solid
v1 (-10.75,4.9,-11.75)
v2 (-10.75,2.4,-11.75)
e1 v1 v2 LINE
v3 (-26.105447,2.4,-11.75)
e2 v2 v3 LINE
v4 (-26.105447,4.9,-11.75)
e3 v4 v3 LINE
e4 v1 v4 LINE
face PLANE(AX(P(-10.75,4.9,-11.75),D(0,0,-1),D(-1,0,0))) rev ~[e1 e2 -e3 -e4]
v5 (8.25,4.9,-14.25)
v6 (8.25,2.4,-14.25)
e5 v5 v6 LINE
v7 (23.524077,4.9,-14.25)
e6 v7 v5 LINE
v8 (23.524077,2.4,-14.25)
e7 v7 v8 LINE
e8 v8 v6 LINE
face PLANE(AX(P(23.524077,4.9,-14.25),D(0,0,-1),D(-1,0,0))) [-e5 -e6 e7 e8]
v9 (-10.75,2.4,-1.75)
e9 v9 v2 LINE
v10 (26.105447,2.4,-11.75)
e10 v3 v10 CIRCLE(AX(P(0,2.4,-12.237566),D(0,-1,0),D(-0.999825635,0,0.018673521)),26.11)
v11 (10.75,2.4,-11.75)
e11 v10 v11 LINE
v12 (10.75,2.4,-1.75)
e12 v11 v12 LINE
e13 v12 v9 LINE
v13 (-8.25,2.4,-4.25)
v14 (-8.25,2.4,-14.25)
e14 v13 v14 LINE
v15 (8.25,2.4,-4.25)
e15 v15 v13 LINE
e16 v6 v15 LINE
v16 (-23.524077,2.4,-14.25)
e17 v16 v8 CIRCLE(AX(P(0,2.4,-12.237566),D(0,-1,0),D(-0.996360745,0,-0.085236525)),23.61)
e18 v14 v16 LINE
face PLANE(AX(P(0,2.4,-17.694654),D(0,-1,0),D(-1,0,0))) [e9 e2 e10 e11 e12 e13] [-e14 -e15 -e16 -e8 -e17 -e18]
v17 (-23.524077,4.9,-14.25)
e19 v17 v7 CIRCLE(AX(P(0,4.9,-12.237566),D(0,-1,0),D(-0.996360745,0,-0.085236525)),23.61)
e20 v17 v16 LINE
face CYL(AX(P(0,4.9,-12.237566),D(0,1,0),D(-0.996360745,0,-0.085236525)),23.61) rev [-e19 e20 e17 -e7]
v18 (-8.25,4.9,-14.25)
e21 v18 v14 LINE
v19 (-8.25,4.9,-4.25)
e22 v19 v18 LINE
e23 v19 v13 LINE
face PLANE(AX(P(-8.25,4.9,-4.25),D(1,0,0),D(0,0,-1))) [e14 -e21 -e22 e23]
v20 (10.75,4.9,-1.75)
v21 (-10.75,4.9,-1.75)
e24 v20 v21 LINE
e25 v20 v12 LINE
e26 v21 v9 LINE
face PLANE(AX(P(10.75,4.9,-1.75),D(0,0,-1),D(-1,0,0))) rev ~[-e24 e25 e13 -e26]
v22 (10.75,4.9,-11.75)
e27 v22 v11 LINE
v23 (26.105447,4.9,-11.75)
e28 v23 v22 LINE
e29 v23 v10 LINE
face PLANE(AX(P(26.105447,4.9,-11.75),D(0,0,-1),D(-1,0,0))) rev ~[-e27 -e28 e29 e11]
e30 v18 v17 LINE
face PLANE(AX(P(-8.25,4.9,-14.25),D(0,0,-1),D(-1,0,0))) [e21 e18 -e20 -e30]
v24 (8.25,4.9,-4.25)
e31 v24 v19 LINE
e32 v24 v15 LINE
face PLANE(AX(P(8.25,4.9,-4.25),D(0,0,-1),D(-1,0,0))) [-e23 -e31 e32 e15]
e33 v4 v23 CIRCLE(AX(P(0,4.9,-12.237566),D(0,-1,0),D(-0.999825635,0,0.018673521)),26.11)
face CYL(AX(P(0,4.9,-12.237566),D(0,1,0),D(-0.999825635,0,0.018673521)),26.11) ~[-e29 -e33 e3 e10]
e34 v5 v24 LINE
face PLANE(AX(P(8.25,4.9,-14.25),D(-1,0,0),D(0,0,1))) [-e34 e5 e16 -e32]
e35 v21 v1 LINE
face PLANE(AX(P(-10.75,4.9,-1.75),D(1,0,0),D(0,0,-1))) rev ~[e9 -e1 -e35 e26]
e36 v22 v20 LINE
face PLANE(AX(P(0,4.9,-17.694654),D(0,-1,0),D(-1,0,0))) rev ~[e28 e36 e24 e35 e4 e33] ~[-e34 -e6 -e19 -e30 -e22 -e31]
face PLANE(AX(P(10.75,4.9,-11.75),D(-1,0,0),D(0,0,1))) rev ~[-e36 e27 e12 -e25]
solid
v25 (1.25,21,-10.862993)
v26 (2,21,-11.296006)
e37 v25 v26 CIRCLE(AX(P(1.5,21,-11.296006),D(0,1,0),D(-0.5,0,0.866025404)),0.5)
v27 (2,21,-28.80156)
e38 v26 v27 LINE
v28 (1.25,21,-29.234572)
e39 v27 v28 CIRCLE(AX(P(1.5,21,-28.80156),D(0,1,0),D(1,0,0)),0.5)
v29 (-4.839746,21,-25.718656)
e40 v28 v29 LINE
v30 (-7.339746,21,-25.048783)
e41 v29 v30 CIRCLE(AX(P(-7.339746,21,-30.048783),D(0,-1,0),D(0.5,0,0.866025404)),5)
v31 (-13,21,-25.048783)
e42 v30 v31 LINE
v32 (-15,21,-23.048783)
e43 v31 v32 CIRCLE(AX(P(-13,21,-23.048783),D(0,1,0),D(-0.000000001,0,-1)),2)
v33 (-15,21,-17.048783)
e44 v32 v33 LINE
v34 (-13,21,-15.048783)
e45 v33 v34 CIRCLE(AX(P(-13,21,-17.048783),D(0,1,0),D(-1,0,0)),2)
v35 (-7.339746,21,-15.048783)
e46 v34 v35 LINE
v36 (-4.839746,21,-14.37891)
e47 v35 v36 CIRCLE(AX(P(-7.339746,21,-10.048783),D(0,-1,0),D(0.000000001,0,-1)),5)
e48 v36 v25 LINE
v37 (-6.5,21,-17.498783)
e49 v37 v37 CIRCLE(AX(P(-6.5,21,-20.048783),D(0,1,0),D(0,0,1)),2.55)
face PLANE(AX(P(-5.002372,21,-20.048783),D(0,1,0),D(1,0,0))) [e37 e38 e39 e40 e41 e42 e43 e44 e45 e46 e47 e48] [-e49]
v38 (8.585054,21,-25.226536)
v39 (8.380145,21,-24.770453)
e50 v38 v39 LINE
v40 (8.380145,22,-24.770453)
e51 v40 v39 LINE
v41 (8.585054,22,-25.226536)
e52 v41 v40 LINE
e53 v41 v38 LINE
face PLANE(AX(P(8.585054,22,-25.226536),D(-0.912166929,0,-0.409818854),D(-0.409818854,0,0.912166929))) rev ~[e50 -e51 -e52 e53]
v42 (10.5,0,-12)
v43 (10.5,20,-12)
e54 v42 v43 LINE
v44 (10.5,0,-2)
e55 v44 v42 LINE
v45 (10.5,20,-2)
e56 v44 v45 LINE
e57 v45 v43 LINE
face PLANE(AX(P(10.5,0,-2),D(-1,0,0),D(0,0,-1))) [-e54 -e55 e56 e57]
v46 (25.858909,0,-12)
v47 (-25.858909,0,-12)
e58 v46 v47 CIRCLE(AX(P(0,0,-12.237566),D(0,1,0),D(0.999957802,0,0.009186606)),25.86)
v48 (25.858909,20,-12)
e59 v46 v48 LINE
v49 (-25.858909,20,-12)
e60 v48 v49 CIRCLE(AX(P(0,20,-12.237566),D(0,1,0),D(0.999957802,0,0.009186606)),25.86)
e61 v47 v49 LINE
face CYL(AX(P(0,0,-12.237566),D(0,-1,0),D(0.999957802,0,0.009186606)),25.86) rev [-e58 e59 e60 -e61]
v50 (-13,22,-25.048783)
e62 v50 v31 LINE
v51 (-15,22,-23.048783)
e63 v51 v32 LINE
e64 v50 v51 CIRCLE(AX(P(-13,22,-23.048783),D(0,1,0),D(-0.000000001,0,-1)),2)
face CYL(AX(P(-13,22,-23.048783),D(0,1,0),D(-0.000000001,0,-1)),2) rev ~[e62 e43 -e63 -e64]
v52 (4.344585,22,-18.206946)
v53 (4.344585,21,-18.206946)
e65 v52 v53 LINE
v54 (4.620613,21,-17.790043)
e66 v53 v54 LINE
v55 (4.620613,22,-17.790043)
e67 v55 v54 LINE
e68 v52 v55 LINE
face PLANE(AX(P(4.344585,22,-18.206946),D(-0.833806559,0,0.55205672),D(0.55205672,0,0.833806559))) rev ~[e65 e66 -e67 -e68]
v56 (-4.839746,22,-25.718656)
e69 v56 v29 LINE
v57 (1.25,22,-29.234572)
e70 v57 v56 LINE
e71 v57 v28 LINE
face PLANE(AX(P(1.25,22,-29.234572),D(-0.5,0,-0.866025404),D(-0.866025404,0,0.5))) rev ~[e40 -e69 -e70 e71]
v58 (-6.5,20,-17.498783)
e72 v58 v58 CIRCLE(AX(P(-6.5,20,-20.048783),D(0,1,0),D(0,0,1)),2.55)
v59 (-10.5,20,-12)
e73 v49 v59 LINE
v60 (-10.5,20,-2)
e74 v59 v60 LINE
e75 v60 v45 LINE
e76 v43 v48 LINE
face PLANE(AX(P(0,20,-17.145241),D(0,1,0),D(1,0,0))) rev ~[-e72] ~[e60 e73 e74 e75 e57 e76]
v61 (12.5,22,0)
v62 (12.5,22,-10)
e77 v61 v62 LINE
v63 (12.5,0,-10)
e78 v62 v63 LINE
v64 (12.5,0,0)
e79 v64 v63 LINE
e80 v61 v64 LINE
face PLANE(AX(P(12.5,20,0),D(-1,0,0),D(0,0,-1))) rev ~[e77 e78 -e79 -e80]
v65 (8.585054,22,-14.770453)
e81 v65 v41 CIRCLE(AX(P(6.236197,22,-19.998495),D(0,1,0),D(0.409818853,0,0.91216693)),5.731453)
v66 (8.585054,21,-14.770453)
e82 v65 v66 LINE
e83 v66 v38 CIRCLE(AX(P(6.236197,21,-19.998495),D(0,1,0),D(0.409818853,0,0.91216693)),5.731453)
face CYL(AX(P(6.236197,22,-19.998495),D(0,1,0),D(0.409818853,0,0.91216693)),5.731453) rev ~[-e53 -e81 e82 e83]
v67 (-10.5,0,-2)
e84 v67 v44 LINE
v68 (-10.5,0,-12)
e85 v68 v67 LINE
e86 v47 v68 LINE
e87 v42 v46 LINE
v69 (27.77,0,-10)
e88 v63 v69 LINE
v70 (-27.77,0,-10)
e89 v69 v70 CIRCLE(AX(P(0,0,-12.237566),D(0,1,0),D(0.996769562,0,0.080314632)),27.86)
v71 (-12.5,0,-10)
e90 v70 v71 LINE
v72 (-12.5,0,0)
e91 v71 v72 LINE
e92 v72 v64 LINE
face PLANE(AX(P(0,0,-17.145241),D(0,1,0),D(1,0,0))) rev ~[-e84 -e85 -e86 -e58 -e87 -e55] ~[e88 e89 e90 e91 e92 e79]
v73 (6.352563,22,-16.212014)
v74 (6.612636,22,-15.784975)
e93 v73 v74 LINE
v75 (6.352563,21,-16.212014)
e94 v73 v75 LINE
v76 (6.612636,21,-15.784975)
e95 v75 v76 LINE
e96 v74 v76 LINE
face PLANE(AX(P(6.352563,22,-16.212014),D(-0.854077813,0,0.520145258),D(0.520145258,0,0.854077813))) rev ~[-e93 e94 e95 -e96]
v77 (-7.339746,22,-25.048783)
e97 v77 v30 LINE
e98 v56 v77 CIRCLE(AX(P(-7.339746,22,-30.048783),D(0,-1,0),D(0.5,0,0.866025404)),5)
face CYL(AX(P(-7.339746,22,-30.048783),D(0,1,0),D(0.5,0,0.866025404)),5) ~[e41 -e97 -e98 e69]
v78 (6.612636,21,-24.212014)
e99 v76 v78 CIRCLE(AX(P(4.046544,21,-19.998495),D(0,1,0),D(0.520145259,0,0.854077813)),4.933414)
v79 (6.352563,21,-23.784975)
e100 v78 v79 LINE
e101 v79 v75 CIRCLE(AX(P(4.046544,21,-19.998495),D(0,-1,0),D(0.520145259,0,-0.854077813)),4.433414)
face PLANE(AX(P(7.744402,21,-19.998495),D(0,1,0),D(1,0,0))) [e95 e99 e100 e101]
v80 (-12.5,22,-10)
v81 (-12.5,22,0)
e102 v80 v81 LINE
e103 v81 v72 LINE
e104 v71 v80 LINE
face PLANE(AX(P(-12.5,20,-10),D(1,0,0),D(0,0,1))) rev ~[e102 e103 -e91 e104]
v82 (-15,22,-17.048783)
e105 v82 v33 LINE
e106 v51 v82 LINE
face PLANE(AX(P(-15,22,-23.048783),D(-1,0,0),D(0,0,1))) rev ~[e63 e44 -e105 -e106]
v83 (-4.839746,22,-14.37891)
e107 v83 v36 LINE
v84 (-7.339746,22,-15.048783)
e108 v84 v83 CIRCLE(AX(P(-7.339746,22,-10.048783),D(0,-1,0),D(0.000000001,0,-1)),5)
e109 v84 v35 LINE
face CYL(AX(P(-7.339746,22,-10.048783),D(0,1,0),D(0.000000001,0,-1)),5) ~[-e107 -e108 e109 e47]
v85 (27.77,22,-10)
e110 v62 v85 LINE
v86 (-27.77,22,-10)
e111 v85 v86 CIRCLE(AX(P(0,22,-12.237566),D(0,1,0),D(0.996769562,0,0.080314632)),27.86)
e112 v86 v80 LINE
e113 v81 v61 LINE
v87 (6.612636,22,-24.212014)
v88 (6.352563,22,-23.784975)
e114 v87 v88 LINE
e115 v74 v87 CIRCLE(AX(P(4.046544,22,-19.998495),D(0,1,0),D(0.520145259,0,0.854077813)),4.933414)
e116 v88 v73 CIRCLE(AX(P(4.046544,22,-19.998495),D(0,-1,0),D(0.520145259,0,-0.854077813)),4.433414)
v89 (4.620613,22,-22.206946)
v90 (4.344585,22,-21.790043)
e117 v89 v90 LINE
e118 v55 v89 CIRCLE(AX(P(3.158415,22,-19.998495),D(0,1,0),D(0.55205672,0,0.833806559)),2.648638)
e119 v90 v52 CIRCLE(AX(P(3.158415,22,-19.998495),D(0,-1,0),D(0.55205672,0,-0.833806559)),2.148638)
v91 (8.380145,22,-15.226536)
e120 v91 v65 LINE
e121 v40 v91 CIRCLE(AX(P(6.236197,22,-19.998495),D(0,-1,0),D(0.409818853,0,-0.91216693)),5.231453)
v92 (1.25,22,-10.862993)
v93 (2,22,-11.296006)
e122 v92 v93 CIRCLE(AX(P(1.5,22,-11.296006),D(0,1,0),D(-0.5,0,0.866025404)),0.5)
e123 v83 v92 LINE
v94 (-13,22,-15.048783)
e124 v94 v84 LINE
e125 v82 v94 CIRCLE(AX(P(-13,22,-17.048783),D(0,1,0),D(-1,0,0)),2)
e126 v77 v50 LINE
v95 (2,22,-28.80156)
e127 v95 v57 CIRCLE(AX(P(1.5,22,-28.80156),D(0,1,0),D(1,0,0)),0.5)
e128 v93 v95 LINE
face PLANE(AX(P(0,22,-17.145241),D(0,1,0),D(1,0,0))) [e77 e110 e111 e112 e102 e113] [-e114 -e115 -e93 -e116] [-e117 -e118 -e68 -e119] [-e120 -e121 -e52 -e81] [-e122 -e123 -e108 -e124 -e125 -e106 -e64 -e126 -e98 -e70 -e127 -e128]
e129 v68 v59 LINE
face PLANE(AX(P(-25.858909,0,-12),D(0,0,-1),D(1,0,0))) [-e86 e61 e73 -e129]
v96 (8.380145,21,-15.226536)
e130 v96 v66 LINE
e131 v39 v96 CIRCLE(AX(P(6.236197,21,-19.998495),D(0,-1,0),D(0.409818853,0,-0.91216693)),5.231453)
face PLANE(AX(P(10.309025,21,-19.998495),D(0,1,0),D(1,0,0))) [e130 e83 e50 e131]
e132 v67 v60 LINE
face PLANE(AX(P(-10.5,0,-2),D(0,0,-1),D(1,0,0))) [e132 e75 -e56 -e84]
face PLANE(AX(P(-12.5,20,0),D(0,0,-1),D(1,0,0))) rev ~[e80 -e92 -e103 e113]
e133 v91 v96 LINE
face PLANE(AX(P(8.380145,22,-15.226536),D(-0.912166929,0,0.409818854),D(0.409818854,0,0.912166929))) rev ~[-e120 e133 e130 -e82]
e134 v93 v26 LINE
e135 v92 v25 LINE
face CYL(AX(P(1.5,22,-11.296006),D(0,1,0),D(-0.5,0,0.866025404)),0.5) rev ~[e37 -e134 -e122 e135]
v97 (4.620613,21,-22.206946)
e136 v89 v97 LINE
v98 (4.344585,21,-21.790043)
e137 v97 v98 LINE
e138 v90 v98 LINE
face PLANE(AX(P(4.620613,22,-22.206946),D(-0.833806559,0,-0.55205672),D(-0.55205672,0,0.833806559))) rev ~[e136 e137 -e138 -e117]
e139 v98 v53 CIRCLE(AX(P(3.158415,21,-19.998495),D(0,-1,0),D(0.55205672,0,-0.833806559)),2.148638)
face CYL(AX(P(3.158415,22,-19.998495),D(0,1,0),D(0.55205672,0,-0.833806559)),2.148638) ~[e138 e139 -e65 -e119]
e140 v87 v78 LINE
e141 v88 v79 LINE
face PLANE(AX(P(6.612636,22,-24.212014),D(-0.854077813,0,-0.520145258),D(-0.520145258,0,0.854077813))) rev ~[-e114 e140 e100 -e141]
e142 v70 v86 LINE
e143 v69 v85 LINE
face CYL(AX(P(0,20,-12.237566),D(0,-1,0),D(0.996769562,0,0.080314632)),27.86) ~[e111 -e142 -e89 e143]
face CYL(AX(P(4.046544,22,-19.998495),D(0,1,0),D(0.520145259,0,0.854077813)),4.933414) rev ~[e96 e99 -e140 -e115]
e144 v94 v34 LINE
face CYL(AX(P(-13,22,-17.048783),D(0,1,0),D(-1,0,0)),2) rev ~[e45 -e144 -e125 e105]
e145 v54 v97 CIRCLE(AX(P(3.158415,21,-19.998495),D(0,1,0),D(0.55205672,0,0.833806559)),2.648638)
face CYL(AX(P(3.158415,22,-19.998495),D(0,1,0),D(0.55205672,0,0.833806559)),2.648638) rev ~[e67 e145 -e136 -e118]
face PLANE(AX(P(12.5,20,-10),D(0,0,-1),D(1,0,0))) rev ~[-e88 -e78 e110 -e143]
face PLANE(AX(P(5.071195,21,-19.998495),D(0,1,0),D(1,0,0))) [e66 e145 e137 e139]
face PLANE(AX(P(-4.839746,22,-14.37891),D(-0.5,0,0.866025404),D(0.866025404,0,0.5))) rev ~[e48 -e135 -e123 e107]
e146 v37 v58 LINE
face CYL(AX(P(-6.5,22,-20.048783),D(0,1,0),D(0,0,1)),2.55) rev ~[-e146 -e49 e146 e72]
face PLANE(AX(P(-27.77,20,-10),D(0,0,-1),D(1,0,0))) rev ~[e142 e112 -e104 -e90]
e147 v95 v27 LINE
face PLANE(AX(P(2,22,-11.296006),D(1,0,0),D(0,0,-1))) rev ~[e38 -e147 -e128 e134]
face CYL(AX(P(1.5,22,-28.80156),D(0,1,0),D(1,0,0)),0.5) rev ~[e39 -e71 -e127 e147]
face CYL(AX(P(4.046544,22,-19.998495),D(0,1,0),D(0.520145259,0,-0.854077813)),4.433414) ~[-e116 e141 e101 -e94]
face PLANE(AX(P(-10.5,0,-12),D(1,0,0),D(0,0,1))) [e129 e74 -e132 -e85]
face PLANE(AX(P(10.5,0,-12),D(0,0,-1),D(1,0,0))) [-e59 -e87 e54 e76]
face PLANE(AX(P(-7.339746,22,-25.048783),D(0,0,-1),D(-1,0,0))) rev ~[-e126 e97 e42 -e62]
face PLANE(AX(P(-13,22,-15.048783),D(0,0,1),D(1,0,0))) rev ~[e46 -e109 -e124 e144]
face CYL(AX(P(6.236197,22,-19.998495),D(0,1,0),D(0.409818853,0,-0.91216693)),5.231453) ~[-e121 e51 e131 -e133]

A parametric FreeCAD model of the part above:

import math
import FreeCAD as App
import Part
import Sketcher
from FreeCAD import Vector
Q = App.Units.Quantity

doc = App.newDocument("Part")
params = doc.addObject("Spreadsheet::Sheet", "Params")
for row, (alias, value) in enumerate([
    ("sketch1_width", "25 mm"),
    ("sketch1_width2", "21 mm"),
    ("sketch1_height", "10 mm"),
    ("sketch1_radius", "27.86 mm"),
    ("sketch1_radius2", "25.86 mm"),
    ("pad1_length", "20 mm"),
    ("sketch2_width", "25 mm"),
    ("sketch2_height", "10 mm"),
    ("sketch2_radius", "27.86 mm"),
    ("sketch2_width2", "15.27 mm"),
    ("pad2_length", "2 mm"),
    ("sketch3_radius", "2 mm"),
    ("sketch3_radius2", "5 mm"),
    ("sketch3_radius3", "0.5 mm"),
    ("sketch3_height", "6 mm"),
    ("pocket1_length", "1 mm"),
    ("sketch4_length", "0.5 mm"),
    ("pocket2_length", "1 mm"),
    ("sketch5_diameter", "5.1 mm"),
    ("pocket3_length", "11 mm"),
    ("sketch6_height", "10 mm"),
    ("sketch6_radius", "26.11 mm"),
    ("sketch6_radius2", "23.61 mm"),
    ("sketch6_width", "21.5 mm"),
    ("sketch6_width2", "16.5 mm"),
    ("pad3_length", "2.5 mm"),
], start=1):
    params.set(f"A{row}", alias)
    params.set(f"B{row}", "=" + value)
    params.setAlias(f"B{row}", alias)

body = doc.addObject("PartDesign::Body", "Body")

sketch1 = doc.addObject("Sketcher::SketchObject", "Sketch")
body.addObject(sketch1)
sketch1.AttachmentSupport = (doc.XZ_Plane, [""])
sketch1.MapMode = "FlatFace"
sketch1.addGeometry(Part.LineSegment(Vector(-28, -10, 0), Vector(-12, -10, 0)), False)
sketch1.addGeometry(Part.LineSegment(Vector(-12, -10, 0), Vector(-12, 0, 0)), False)
sketch1.addGeometry(Part.LineSegment(Vector(-12, 0, 0), Vector(12, 0, 0)), False)
sketch1.addGeometry(Part.LineSegment(Vector(12, 0, 0), Vector(12, -10, 0)), False)
sketch1.addGeometry(Part.LineSegment(Vector(12, -10, 0), Vector(28, -10, 0)), False)
sketch1.addGeometry(Part.ArcOfCircle(Part.Circle(Vector(0, -12, 0), Vector(0, 0, 1), 28), math.radians(175), math.radians(365)), False)
sketch1.addGeometry(Part.LineSegment(Vector(-10, -12, 0), Vector(-26, -12, 0)), False)
sketch1.addGeometry(Part.ArcOfCircle(Part.Circle(Vector(0, -12, 0), Vector(0, 0, 1), 26), math.radians(179), math.radians(361)), False)
sketch1.addGeometry(Part.LineSegment(Vector(26, -12, 0), Vector(10, -12, 0)), False)
sketch1.addGeometry(Part.LineSegment(Vector(10, -12, 0), Vector(10, -2, 0)), False)
sketch1.addGeometry(Part.LineSegment(Vector(10, -2, 0), Vector(-10, -2, 0)), False)
sketch1.addGeometry(Part.LineSegment(Vector(-10, -2, 0), Vector(-10, -12, 0)), False)
sketch1.addConstraint(Sketcher.Constraint("Coincident", 0, 2, 1, 1))
sketch1.addConstraint(Sketcher.Constraint("Coincident", 1, 2, 2, 1))
sketch1.addConstraint(Sketcher.Constraint("Coincident", 2, 2, 3, 1))
sketch1.addConstraint(Sketcher.Constraint("Coincident", 3, 2, 4, 1))
sketch1.addConstraint(Sketcher.Constraint("Coincident", 4, 2, 5, 2))
sketch1.addConstraint(Sketcher.Constraint("Coincident", 5, 1, 0, 1))
sketch1.addConstraint(Sketcher.Constraint("Coincident", 6, 2, 7, 1))
sketch1.addConstraint(Sketcher.Constraint("Coincident", 7, 2, 8, 1))
sketch1.addConstraint(Sketcher.Constraint("Coincident", 8, 2, 9, 1))
sketch1.addConstraint(Sketcher.Constraint("Coincident", 9, 2, 10, 1))
sketch1.addConstraint(Sketcher.Constraint("Coincident", 10, 2, 11, 1))
sketch1.addConstraint(Sketcher.Constraint("Coincident", 11, 2, 6, 1))
sketch1.addConstraint(Sketcher.Constraint("Horizontal", 0))
sketch1.addConstraint(Sketcher.Constraint("Vertical", 1))
sketch1.addConstraint(Sketcher.Constraint("Horizontal", 2))
sketch1.addConstraint(Sketcher.Constraint("Vertical", 3))
sketch1.addConstraint(Sketcher.Constraint("Horizontal", 4))
sketch1.addConstraint(Sketcher.Constraint("Horizontal", 6))
sketch1.addConstraint(Sketcher.Constraint("Horizontal", 8))
sketch1.addConstraint(Sketcher.Constraint("Vertical", 9))
sketch1.addConstraint(Sketcher.Constraint("Horizontal", 10))
sketch1.addConstraint(Sketcher.Constraint("Vertical", 11))
sketch1.addConstraint(Sketcher.Constraint("Coincident", 7, 3, 5, 3))
sketch1.addConstraint(Sketcher.Constraint("Symmetric", 1, 2, 2, 2, -1, 1))
sketch1.addConstraint(Sketcher.Constraint("Symmetric", 4, 2, 5, 1, -2))
sketch1.addConstraint(Sketcher.Constraint("Symmetric", 8, 2, 11, 2, -2))
sketch1.addConstraint(Sketcher.Constraint("Equal", 3, 9))
sketch1.addConstraint(Sketcher.Constraint("DistanceX", 2, 1, 2, 2, Q("25 mm")))
sketch1.addConstraint(Sketcher.Constraint("DistanceX", 10, 2, 10, 1, Q("21 mm")))
sketch1.addConstraint(Sketcher.Constraint("DistanceY", 1, 1, 1, 2, Q("10 mm")))
sketch1.addConstraint(Sketcher.Constraint("Radius", 5, Q("27.86 mm")))
sketch1.addConstraint(Sketcher.Constraint("Radius", 7, Q("25.86 mm")))
sketch1.addConstraint(Sketcher.Constraint("DistanceY", 6, 2, -1, 1, Q("12 mm")))
sketch1.addConstraint(Sketcher.Constraint("DistanceX", 0, 1, 0, 2, Q("15.27 mm")))
sketch1.setExpression("Constraints[27]", "Params.sketch1_width")
sketch1.setExpression("Constraints[28]", "Params.sketch1_width2")
sketch1.setExpression("Constraints[29]", "Params.sketch1_height")
sketch1.setExpression("Constraints[30]", "Params.sketch1_radius")
sketch1.setExpression("Constraints[31]", "Params.sketch1_radius2")
pad1 = doc.addObject("PartDesign::Pad", "Pad")
body.addObject(pad1)
pad1.Profile = sketch1
pad1.setExpression("Length", "Params.pad1_length")
pad1.Reversed = True

sketch2 = doc.addObject("Sketcher::SketchObject", "Sketch001")
body.addObject(sketch2)
sketch2.AttachmentSupport = (doc.XZ_Plane, [""])
sketch2.MapMode = "FlatFace"
sketch2.AttachmentOffset = App.Placement(Vector(0, 0, -20), App.Rotation())
sketch2.addGeometry(Part.LineSegment(Vector(12, -10, 0), Vector(28, -10, 0)), False)
sketch2.addGeometry(Part.ArcOfCircle(Part.Circle(Vector(0, -12, 0), Vector(0, 0, 1), 28), math.radians(175), math.radians(365)), False)
sketch2.addGeometry(Part.LineSegment(Vector(-28, -10, 0), Vector(-12, -10, 0)), False)
sketch2.addGeometry(Part.LineSegment(Vector(-12, -10, 0), Vector(-12, 0, 0)), False)
sketch2.addGeometry(Part.LineSegment(Vector(-12, 0, 0), Vector(12, 0, 0)), False)
sketch2.addGeometry(Part.LineSegment(Vector(12, 0, 0), Vector(12, -10, 0)), False)
sketch2.addConstraint(Sketcher.Constraint("Coincident", 0, 2, 1, 2))
sketch2.addConstraint(Sketcher.Constraint("Coincident", 1, 1, 2, 1))
sketch2.addConstraint(Sketcher.Constraint("Coincident", 2, 2, 3, 1))
sketch2.addConstraint(Sketcher.Constraint("Coincident", 3, 2, 4, 1))
sketch2.addConstraint(Sketcher.Constraint("Coincident", 4, 2, 5, 1))
sketch2.addConstraint(Sketcher.Constraint("Coincident", 5, 2, 0, 1))
sketch2.addConstraint(Sketcher.Constraint("Horizontal", 0))
sketch2.addConstraint(Sketcher.Constraint("Horizontal", 2))
sketch2.addConstraint(Sketcher.Constraint("Vertical", 3))
sketch2.addConstraint(Sketcher.Constraint("Horizontal", 4))
sketch2.addConstraint(Sketcher.Constraint("Vertical", 5))
sketch2.addConstraint(Sketcher.Constraint("Symmetric", 3, 2, 4, 2, -1, 1))
sketch2.addConstraint(Sketcher.Constraint("Symmetric", 0, 2, 1, 1, -2))
sketch2.addConstraint(Sketcher.Constraint("DistanceX", 4, 1, 4, 2, Q("25 mm")))
sketch2.addConstraint(Sketcher.Constraint("DistanceY", 3, 1, 3, 2, Q("10 mm")))
sketch2.addConstraint(Sketcher.Constraint("Radius", 1, Q("27.86 mm")))
sketch2.addConstraint(Sketcher.Constraint("DistanceX", 0, 1, 0, 2, Q("15.27 mm")))
sketch2.setExpression("Constraints[13]", "Params.sketch2_width")
sketch2.setExpression("Constraints[14]", "Params.sketch2_height")
sketch2.setExpression("Constraints[15]", "Params.sketch2_radius")
sketch2.setExpression("Constraints[16]", "Params.sketch2_width2")
pad2 = doc.addObject("PartDesign::Pad", "Pad001")
body.addObject(pad2)
pad2.Profile = sketch2
pad2.setExpression("Length", "Params.pad2_length")
pad2.Reversed = True

sketch3 = doc.addObject("Sketcher::SketchObject", "Sketch002")
body.addObject(sketch3)
sketch3.AttachmentSupport = (doc.XZ_Plane, [""])
sketch3.MapMode = "FlatFace"
sketch3.AttachmentOffset = App.Placement(Vector(0, 0, -22), App.Rotation())
sketch3.addGeometry(Part.LineSegment(Vector(-15, -23, 0), Vector(-15, -17, 0)), False)
sketch3.addGeometry(Part.ArcOfCircle(Part.Circle(Vector(-13, -17, 0), Vector(0, 0, 1), 2), math.radians(90), math.radians(180)), False)
sketch3.addGeometry(Part.LineSegment(Vector(-13, -15, 0), Vector(-7.3, -15, 0)), False)
sketch3.addGeometry(Part.ArcOfCircle(Part.Circle(Vector(-7.3, -10, 0), Vector(0, 0, 1), 5), math.radians(-90), math.radians(-60)), False)
sketch3.addGeometry(Part.LineSegment(Vector(-4.8, -14.4, 0), Vector(1.2, -10.9, 0)), False)
sketch3.addGeometry(Part.ArcOfCircle(Part.Circle(Vector(1.5, -11.3, 0), Vector(0, 0, 1), 0.5), math.radians(0), math.radians(120)), False)
sketch3.addGeometry(Part.LineSegment(Vector(2, -11.3, 0), Vector(2, -28.8, 0)), False)
sketch3.addGeometry(Part.ArcOfCircle(Part.Circle(Vector(1.5, -28.8, 0), Vector(0, 0, 1), 0.5), math.radians(-120), math.radians(0)), False)
sketch3.addGeometry(Part.LineSegment(Vector(1.2, -29.2, 0), Vector(-4.8, -25.7, 0)), False)
sketch3.addGeometry(Part.ArcOfCircle(Part.Circle(Vector(-7.3, -30, 0), Vector(0, 0, 1), 5), math.radians(60), math.radians(90)), False)
sketch3.addGeometry(Part.LineSegment(Vector(-7.3, -25, 0), Vector(-13, -25, 0)), False)
sketch3.addGeometry(Part.ArcOfCircle(Part.Circle(Vector(-13, -23, 0), Vector(0, 0, 1), 2), math.radians(-180), math.radians(-90)), False)
sketch3.addConstraint(Sketcher.Constraint("Tangent", 0, 2, 1, 2))
sketch3.addConstraint(Sketcher.Constraint("Tangent", 1, 1, 2, 1))
sketch3.addConstraint(Sketcher.Constraint("Tangent", 2, 2, 3, 1))
sketch3.addConstraint(Sketcher.Constraint("Tangent", 3, 2, 4, 1))
sketch3.addConstraint(Sketcher.Constraint("Tangent", 4, 2, 5, 2))
sketch3.addConstraint(Sketcher.Constraint("Tangent", 5, 1, 6, 1))
sketch3.addConstraint(Sketcher.Constraint("Tangent", 6, 2, 7, 2))
sketch3.addConstraint(Sketcher.Constraint("Tangent", 7, 1, 8, 1))
sketch3.addConstraint(Sketcher.Constraint("Tangent", 8, 2, 9, 1))
sketch3.addConstraint(Sketcher.Constraint("Tangent", 9, 2, 10, 1))
sketch3.addConstraint(Sketcher.Constraint("Tangent", 10, 2, 11, 2))
sketch3.addConstraint(Sketcher.Constraint("Tangent", 11, 1, 0, 1))
sketch3.addConstraint(Sketcher.Constraint("Vertical", 0))
sketch3.addConstraint(Sketcher.Constraint("Horizontal", 2))
sketch3.addConstraint(Sketcher.Constraint("Vertical", 6))
sketch3.addConstraint(Sketcher.Constraint("Horizontal", 10))
sketch3.addConstraint(Sketcher.Constraint("Equal", 5, 7))
sketch3.addConstraint(Sketcher.Constraint("Equal", 3, 9))
sketch3.addConstraint(Sketcher.Constraint("Equal", 1, 11))
sketch3.addConstraint(Sketcher.Constraint("Vertical", 3, 3, 9, 3))
sketch3.addConstraint(Sketcher.Constraint("Vertical", 4, 2, 7, 1))
sketch3.addConstraint(Sketcher.Constraint("Radius", 1, Q("2 mm")))
sketch3.addConstraint(Sketcher.Constraint("Radius", 3, Q("5 mm")))
sketch3.addConstraint(Sketcher.Constraint("Radius", 5, Q("0.5 mm")))
sketch3.addConstraint(Sketcher.Constraint("DistanceY", 0, 1, 0, 2, Q("6 mm")))
sketch3.addConstraint(Sketcher.Constraint("Angle", 4, Q("30 deg")))
sketch3.addConstraint(Sketcher.Constraint("DistanceX", 1, 3, -1, 1, Q("13 mm")))
sketch3.addConstraint(Sketcher.Constraint("DistanceX", -1, 1, 5, 1, Q("2 mm")))
sketch3.addConstraint(Sketcher.Constraint("DistanceX", 2, 1, 2, 2, Q("5.660254 mm")))
sketch3.addConstraint(Sketcher.Constraint("DistanceY", 7, 3, -1, 1, Q("28.80156 mm")))
sketch3.setExpression("Constraints[21]", "Params.sketch3_radius")
sketch3.setExpression("Constraints[22]", "Params.sketch3_radius2")
sketch3.setExpression("Constraints[23]", "Params.sketch3_radius3")
sketch3.setExpression("Constraints[24]", "Params.sketch3_height")
pocket1 = doc.addObject("PartDesign::Pocket", "Pocket")
body.addObject(pocket1)
pocket1.Profile = sketch3
pocket1.setExpression("Length", "Params.pocket1_length")
pocket1.Reversed = True

sketch4 = doc.addObject("Sketcher::SketchObject", "Sketch003")
body.addObject(sketch4)
sketch4.AttachmentSupport = (doc.XZ_Plane, [""])
sketch4.MapMode = "FlatFace"
sketch4.AttachmentOffset = App.Placement(Vector(0, 0, -22), App.Rotation())
sketch4.addGeometry(Part.ArcOfCircle(Part.Circle(Vector(3.16, -20, 0), Vector(0, 0, 1), 2.15), math.radians(-56), math.radians(56)), False)
sketch4.addGeometry(Part.LineSegment(Vector(4.34, -18.21, 0), Vector(4.62, -17.79, 0)), False)
sketch4.addGeometry(Part.ArcOfCircle(Part.Circle(Vector(3.16, -20, 0), Vector(0, 0, 1), 2.65), math.radians(-56), math.radians(56)), False)
sketch4.addGeometry(Part.LineSegment(Vector(4.62, -22.21, 0), Vector(4.34, -21.79, 0)), False)
sketch4.addGeometry(Part.ArcOfCircle(Part.Circle(Vector(4.05, -20, 0), Vector(0, 0, 1), 4.43), math.radians(-59), math.radians(59)), False)
sketch4.addGeometry(Part.LineSegment(Vector(6.35, -16.21, 0), Vector(6.61, -15.78, 0)), False)
sketch4.addGeometry(Part.ArcOfCircle(Part.Circle(Vector(4.05, -20, 0), Vector(0, 0, 1), 4.93), math.radians(-59), math.radians(59)), False)
sketch4.addGeometry(Part.LineSegment(Vector(6.61, -24.21, 0), Vector(6.35, -23.78, 0)), False)
sketch4.addGeometry(Part.ArcOfCircle(Part.Circle(Vector(6.24, -20, 0), Vector(0, 0, 1), 5.23), math.radians(-66), math.radians(66)), False)
sketch4.addGeometry(Part.LineSegment(Vector(8.38, -15.23, 0), Vector(8.59, -14.77, 0)), False)
sketch4.addGeometry(Part.ArcOfCircle(Part.Circle(Vector(6.24, -20, 0), Vector(0, 0, 1), 5.73), math.radians(-66), math.radians(66)), False)
sketch4.addGeometry(Part.LineSegment(Vector(8.59, -25.23, 0), Vector(8.38, -24.77, 0)), False)
sketch4.addConstraint(Sketcher.Constraint("Coincident", 0, 2, 1, 1))
sketch4.addConstraint(Sketcher.Constraint("Coincident", 1, 2, 2, 2))
sketch4.addConstraint(Sketcher.Constraint("Coincident", 2, 1, 3, 1))
sketch4.addConstraint(Sketcher.Constraint("Coincident", 3, 2, 0, 1))
sketch4.addConstraint(Sketcher.Constraint("Coincident", 4, 2, 5, 1))
sketch4.addConstraint(Sketcher.Constraint("Coincident", 5, 2, 6, 2))
sketch4.addConstraint(Sketcher.Constraint("Coincident", 6, 1, 7, 1))
sketch4.addConstraint(Sketcher.Constraint("Coincident", 7, 2, 4, 1))
sketch4.addConstraint(Sketcher.Constraint("Coincident", 8, 2, 9, 1))
sketch4.addConstraint(Sketcher.Constraint("Coincident", 9, 2, 10, 2))
sketch4.addConstraint(Sketcher.Constraint("Coincident", 10, 1, 11, 1))
sketch4.addConstraint(Sketcher.Constraint("Coincident", 11, 2, 8, 1))
sketch4.addConstraint(Sketcher.Constraint("Coincident", 2, 3, 0, 3))
sketch4.addConstraint(Sketcher.Constraint("Coincident", 6, 3, 4, 3))
sketch4.addConstraint(Sketcher.Constraint("Coincident", 10, 3, 8, 3))
sketch4.addConstraint(Sketcher.Constraint("Horizontal", 2, 3, 4, 3))
sketch4.addConstraint(Sketcher.Constraint("Horizontal", 6, 3, 8, 3))
sketch4.addConstraint(Sketcher.Constraint("Vertical", 1, 2, 2, 1))
sketch4.addConstraint(Sketcher.Constraint("Vertical", 0, 2, 3, 2))
sketch4.addConstraint(Sketcher.Constraint("Vertical", 5, 2, 6, 1))
sketch4.addConstraint(Sketcher.Constraint("Vertical", 4, 2, 7, 2))
sketch4.addConstraint(Sketcher.Constraint("Vertical", 9, 2, 10, 1))
sketch4.addConstraint(Sketcher.Constraint("Vertical", 8, 2, 11, 2))
sketch4.addConstraint(Sketcher.Constraint("Equal", 3, 5))
sketch4.addConstraint(Sketcher.Constraint("Equal", 7, 9))
sketch4.addConstraint(Sketcher.Constraint("Distance", 1, Q("0.5 mm")))
sketch4.addConstraint(Sketcher.Constraint("Radius", 0, Q("2.148638 mm")))
sketch4.addConstraint(Sketcher.Constraint("Radius", 4, Q("4.433414 mm")))
sketch4.addConstraint(Sketcher.Constraint("Radius", 8, Q("5.231453 mm")))
sketch4.addConstraint(Sketcher.Constraint("DistanceX", 2, 3, 1, 2, Q("1.462198 mm")))
sketch4.addConstraint(Sketcher.Constraint("DistanceX", 2, 3, 4, 3, Q("0.888129 mm")))
sketch4.addConstraint(Sketcher.Constraint("DistanceX", 2, 3, 8, 3, Q("3.077781 mm")))
sketch4.addConstraint(Sketcher.Constraint("DistanceX", 4, 3, 0, 2, Q("0.298041 mm")))
sketch4.addConstraint(Sketcher.Constraint("DistanceX", 1, 2, 4, 2, Q("1.73195 mm")))
sketch4.addConstraint(Sketcher.Constraint("DistanceY", 4, 2, 5, 2, Q("0.427039 mm")))
sketch4.addConstraint(Sketcher.Constraint("DistanceX", 5, 2, 8, 2, Q("1.767509 mm")))
sketch4.addConstraint(Sketcher.Constraint("DistanceX", 8, 2, 9, 2, Q("0.204909 mm")))
sketch4.addConstraint(Sketcher.Constraint("DistanceX", -1, 1, 0, 3, Q("3.158415 mm")))
sketch4.addConstraint(Sketcher.Constraint("DistanceY", 0, 3, -1, 1, Q("19.998495 mm")))
sketch4.setExpression("Constraints[25]", "Params.sketch4_length")
pocket2 = doc.addObject("PartDesign::Pocket", "Pocket001")
body.addObject(pocket2)
pocket2.Profile = sketch4
pocket2.setExpression("Length", "Params.pocket2_length")
pocket2.Reversed = True

sketch5 = doc.addObject("Sketcher::SketchObject", "Sketch004")
body.addObject(sketch5)
sketch5.AttachmentSupport = (doc.XZ_Plane, [""])
sketch5.MapMode = "FlatFace"
sketch5.AttachmentOffset = App.Placement(Vector(0, 0, -22), App.Rotation())
sketch5.addGeometry(Part.Circle(Vector(-6.5, -20, 0), Vector(0, 0, 1), 2.5), False)
sketch5.addConstraint(Sketcher.Constraint("Diameter", 0, Q("5.1 mm")))
sketch5.addConstraint(Sketcher.Constraint("DistanceX", 0, 3, -1, 1, Q("6.5 mm")))
sketch5.addConstraint(Sketcher.Constraint("DistanceY", 0, 3, -1, 1, Q("20.048783 mm")))
sketch5.setExpression("Constraints[0]", "Params.sketch5_diameter")
pocket3 = doc.addObject("PartDesign::Pocket", "Pocket002")
body.addObject(pocket3)
pocket3.Profile = sketch5
pocket3.setExpression("Length", "Params.pocket3_length")
pocket3.Reversed = True
body2 = doc.addObject("PartDesign::Body", "Body001")

sketch6 = doc.addObject("Sketcher::SketchObject", "Sketch005")
body2.addObject(sketch6)
sketch6.AttachmentSupport = (doc.getObject("XZ_Plane001"), [""])
sketch6.MapMode = "FlatFace"
sketch6.AttachmentOffset = App.Placement(Vector(0, 0, -4.9), App.Rotation())
sketch6.addGeometry(Part.LineSegment(Vector(26, -12, 0), Vector(11, -12, 0)), False)
sketch6.addGeometry(Part.LineSegment(Vector(11, -12, 0), Vector(11, -2, 0)), False)
sketch6.addGeometry(Part.LineSegment(Vector(11, -2, 0), Vector(-11, -2, 0)), False)
sketch6.addGeometry(Part.LineSegment(Vector(-11, -2, 0), Vector(-11, -12, 0)), False)
sketch6.addGeometry(Part.LineSegment(Vector(-11, -12, 0), Vector(-26, -12, 0)), False)
sketch6.addGeometry(Part.ArcOfCircle(Part.Circle(Vector(0, -12, 0), Vector(0, 0, 1), 26), math.radians(179), math.radians(361)), False)
sketch6.addGeometry(Part.LineSegment(Vector(8, -14, 0), Vector(24, -14, 0)), False)
sketch6.addGeometry(Part.ArcOfCircle(Part.Circle(Vector(0, -12, 0), Vector(0, 0, 1), 24), math.radians(-175), math.radians(-5)), False)
sketch6.addGeometry(Part.LineSegment(Vector(-24, -14, 0), Vector(-8, -14, 0)), False)
sketch6.addGeometry(Part.LineSegment(Vector(-8, -14, 0), Vector(-8, -4, 0)), False)
sketch6.addGeometry(Part.LineSegment(Vector(-8, -4, 0), Vector(8, -4, 0)), False)
sketch6.addGeometry(Part.LineSegment(Vector(8, -4, 0), Vector(8, -14, 0)), False)
sketch6.addConstraint(Sketcher.Constraint("Coincident", 0, 2, 1, 1))
sketch6.addConstraint(Sketcher.Constraint("Coincident", 1, 2, 2, 1))
sketch6.addConstraint(Sketcher.Constraint("Coincident", 2, 2, 3, 1))
sketch6.addConstraint(Sketcher.Constraint("Coincident", 3, 2, 4, 1))
sketch6.addConstraint(Sketcher.Constraint("Coincident", 4, 2, 5, 1))
sketch6.addConstraint(Sketcher.Constraint("Coincident", 5, 2, 0, 1))
sketch6.addConstraint(Sketcher.Constraint("Coincident", 6, 2, 7, 2))
sketch6.addConstraint(Sketcher.Constraint("Coincident", 7, 1, 8, 1))
sketch6.addConstraint(Sketcher.Constraint("Coincident", 8, 2, 9, 1))
sketch6.addConstraint(Sketcher.Constraint("Coincident", 9, 2, 10, 1))
sketch6.addConstraint(Sketcher.Constraint("Coincident", 10, 2, 11, 1))
sketch6.addConstraint(Sketcher.Constraint("Coincident", 11, 2, 6, 1))
sketch6.addConstraint(Sketcher.Constraint("Horizontal", 0))
sketch6.addConstraint(Sketcher.Constraint("Vertical", 1))
sketch6.addConstraint(Sketcher.Constraint("Horizontal", 2))
sketch6.addConstraint(Sketcher.Constraint("Vertical", 3))
sketch6.addConstraint(Sketcher.Constraint("Horizontal", 4))
sketch6.addConstraint(Sketcher.Constraint("Horizontal", 6))
sketch6.addConstraint(Sketcher.Constraint("Horizontal", 8))
sketch6.addConstraint(Sketcher.Constraint("Vertical", 9))
sketch6.addConstraint(Sketcher.Constraint("Horizontal", 10))
sketch6.addConstraint(Sketcher.Constraint("Vertical", 11))
sketch6.addConstraint(Sketcher.Constraint("Coincident", 7, 3, 5, 3))
sketch6.addConstraint(Sketcher.Constraint("Symmetric", 0, 2, 3, 2, -2))
sketch6.addConstraint(Sketcher.Constraint("Symmetric", 6, 2, 7, 1, -2))
sketch6.addConstraint(Sketcher.Constraint("Equal", 6, 8))
sketch6.addConstraint(Sketcher.Constraint("Equal", 3, 9))
sketch6.addConstraint(Sketcher.Constraint("DistanceY", 1, 1, 1, 2, Q("10 mm")))
sketch6.addConstraint(Sketcher.Constraint("Radius", 5, Q("26.11 mm")))
sketch6.addConstraint(Sketcher.Constraint("Radius", 7, Q("23.61 mm")))
sketch6.addConstraint(Sketcher.Constraint("DistanceX", 2, 2, 2, 1, Q("21.5 mm")))
sketch6.addConstraint(Sketcher.Constraint("DistanceX", 10, 1, 10, 2, Q("16.5 mm")))
sketch6.addConstraint(Sketcher.Constraint("DistanceY", 6, 2, 5, 2, Q("2.5 mm")))
sketch6.addConstraint(Sketcher.Constraint("DistanceY", 0, 2, -1, 1, Q("11.75 mm")))
sketch6.addConstraint(Sketcher.Constraint("DistanceX", 0, 2, 0, 1, Q("15.355447 mm")))
sketch6.setExpression("Constraints[27]", "Params.sketch6_height")
sketch6.setExpression("Constraints[28]", "Params.sketch6_radius")
sketch6.setExpression("Constraints[29]", "Params.sketch6_radius2")
sketch6.setExpression("Constraints[30]", "Params.sketch6_width")
sketch6.setExpression("Constraints[31]", "Params.sketch6_width2")
pad3 = doc.addObject("PartDesign::Pad", "Pad002")
body2.addObject(pad3)
pad3.Profile = sketch6
pad3.setExpression("Length", "Params.pad3_length")

doc.recompute()
